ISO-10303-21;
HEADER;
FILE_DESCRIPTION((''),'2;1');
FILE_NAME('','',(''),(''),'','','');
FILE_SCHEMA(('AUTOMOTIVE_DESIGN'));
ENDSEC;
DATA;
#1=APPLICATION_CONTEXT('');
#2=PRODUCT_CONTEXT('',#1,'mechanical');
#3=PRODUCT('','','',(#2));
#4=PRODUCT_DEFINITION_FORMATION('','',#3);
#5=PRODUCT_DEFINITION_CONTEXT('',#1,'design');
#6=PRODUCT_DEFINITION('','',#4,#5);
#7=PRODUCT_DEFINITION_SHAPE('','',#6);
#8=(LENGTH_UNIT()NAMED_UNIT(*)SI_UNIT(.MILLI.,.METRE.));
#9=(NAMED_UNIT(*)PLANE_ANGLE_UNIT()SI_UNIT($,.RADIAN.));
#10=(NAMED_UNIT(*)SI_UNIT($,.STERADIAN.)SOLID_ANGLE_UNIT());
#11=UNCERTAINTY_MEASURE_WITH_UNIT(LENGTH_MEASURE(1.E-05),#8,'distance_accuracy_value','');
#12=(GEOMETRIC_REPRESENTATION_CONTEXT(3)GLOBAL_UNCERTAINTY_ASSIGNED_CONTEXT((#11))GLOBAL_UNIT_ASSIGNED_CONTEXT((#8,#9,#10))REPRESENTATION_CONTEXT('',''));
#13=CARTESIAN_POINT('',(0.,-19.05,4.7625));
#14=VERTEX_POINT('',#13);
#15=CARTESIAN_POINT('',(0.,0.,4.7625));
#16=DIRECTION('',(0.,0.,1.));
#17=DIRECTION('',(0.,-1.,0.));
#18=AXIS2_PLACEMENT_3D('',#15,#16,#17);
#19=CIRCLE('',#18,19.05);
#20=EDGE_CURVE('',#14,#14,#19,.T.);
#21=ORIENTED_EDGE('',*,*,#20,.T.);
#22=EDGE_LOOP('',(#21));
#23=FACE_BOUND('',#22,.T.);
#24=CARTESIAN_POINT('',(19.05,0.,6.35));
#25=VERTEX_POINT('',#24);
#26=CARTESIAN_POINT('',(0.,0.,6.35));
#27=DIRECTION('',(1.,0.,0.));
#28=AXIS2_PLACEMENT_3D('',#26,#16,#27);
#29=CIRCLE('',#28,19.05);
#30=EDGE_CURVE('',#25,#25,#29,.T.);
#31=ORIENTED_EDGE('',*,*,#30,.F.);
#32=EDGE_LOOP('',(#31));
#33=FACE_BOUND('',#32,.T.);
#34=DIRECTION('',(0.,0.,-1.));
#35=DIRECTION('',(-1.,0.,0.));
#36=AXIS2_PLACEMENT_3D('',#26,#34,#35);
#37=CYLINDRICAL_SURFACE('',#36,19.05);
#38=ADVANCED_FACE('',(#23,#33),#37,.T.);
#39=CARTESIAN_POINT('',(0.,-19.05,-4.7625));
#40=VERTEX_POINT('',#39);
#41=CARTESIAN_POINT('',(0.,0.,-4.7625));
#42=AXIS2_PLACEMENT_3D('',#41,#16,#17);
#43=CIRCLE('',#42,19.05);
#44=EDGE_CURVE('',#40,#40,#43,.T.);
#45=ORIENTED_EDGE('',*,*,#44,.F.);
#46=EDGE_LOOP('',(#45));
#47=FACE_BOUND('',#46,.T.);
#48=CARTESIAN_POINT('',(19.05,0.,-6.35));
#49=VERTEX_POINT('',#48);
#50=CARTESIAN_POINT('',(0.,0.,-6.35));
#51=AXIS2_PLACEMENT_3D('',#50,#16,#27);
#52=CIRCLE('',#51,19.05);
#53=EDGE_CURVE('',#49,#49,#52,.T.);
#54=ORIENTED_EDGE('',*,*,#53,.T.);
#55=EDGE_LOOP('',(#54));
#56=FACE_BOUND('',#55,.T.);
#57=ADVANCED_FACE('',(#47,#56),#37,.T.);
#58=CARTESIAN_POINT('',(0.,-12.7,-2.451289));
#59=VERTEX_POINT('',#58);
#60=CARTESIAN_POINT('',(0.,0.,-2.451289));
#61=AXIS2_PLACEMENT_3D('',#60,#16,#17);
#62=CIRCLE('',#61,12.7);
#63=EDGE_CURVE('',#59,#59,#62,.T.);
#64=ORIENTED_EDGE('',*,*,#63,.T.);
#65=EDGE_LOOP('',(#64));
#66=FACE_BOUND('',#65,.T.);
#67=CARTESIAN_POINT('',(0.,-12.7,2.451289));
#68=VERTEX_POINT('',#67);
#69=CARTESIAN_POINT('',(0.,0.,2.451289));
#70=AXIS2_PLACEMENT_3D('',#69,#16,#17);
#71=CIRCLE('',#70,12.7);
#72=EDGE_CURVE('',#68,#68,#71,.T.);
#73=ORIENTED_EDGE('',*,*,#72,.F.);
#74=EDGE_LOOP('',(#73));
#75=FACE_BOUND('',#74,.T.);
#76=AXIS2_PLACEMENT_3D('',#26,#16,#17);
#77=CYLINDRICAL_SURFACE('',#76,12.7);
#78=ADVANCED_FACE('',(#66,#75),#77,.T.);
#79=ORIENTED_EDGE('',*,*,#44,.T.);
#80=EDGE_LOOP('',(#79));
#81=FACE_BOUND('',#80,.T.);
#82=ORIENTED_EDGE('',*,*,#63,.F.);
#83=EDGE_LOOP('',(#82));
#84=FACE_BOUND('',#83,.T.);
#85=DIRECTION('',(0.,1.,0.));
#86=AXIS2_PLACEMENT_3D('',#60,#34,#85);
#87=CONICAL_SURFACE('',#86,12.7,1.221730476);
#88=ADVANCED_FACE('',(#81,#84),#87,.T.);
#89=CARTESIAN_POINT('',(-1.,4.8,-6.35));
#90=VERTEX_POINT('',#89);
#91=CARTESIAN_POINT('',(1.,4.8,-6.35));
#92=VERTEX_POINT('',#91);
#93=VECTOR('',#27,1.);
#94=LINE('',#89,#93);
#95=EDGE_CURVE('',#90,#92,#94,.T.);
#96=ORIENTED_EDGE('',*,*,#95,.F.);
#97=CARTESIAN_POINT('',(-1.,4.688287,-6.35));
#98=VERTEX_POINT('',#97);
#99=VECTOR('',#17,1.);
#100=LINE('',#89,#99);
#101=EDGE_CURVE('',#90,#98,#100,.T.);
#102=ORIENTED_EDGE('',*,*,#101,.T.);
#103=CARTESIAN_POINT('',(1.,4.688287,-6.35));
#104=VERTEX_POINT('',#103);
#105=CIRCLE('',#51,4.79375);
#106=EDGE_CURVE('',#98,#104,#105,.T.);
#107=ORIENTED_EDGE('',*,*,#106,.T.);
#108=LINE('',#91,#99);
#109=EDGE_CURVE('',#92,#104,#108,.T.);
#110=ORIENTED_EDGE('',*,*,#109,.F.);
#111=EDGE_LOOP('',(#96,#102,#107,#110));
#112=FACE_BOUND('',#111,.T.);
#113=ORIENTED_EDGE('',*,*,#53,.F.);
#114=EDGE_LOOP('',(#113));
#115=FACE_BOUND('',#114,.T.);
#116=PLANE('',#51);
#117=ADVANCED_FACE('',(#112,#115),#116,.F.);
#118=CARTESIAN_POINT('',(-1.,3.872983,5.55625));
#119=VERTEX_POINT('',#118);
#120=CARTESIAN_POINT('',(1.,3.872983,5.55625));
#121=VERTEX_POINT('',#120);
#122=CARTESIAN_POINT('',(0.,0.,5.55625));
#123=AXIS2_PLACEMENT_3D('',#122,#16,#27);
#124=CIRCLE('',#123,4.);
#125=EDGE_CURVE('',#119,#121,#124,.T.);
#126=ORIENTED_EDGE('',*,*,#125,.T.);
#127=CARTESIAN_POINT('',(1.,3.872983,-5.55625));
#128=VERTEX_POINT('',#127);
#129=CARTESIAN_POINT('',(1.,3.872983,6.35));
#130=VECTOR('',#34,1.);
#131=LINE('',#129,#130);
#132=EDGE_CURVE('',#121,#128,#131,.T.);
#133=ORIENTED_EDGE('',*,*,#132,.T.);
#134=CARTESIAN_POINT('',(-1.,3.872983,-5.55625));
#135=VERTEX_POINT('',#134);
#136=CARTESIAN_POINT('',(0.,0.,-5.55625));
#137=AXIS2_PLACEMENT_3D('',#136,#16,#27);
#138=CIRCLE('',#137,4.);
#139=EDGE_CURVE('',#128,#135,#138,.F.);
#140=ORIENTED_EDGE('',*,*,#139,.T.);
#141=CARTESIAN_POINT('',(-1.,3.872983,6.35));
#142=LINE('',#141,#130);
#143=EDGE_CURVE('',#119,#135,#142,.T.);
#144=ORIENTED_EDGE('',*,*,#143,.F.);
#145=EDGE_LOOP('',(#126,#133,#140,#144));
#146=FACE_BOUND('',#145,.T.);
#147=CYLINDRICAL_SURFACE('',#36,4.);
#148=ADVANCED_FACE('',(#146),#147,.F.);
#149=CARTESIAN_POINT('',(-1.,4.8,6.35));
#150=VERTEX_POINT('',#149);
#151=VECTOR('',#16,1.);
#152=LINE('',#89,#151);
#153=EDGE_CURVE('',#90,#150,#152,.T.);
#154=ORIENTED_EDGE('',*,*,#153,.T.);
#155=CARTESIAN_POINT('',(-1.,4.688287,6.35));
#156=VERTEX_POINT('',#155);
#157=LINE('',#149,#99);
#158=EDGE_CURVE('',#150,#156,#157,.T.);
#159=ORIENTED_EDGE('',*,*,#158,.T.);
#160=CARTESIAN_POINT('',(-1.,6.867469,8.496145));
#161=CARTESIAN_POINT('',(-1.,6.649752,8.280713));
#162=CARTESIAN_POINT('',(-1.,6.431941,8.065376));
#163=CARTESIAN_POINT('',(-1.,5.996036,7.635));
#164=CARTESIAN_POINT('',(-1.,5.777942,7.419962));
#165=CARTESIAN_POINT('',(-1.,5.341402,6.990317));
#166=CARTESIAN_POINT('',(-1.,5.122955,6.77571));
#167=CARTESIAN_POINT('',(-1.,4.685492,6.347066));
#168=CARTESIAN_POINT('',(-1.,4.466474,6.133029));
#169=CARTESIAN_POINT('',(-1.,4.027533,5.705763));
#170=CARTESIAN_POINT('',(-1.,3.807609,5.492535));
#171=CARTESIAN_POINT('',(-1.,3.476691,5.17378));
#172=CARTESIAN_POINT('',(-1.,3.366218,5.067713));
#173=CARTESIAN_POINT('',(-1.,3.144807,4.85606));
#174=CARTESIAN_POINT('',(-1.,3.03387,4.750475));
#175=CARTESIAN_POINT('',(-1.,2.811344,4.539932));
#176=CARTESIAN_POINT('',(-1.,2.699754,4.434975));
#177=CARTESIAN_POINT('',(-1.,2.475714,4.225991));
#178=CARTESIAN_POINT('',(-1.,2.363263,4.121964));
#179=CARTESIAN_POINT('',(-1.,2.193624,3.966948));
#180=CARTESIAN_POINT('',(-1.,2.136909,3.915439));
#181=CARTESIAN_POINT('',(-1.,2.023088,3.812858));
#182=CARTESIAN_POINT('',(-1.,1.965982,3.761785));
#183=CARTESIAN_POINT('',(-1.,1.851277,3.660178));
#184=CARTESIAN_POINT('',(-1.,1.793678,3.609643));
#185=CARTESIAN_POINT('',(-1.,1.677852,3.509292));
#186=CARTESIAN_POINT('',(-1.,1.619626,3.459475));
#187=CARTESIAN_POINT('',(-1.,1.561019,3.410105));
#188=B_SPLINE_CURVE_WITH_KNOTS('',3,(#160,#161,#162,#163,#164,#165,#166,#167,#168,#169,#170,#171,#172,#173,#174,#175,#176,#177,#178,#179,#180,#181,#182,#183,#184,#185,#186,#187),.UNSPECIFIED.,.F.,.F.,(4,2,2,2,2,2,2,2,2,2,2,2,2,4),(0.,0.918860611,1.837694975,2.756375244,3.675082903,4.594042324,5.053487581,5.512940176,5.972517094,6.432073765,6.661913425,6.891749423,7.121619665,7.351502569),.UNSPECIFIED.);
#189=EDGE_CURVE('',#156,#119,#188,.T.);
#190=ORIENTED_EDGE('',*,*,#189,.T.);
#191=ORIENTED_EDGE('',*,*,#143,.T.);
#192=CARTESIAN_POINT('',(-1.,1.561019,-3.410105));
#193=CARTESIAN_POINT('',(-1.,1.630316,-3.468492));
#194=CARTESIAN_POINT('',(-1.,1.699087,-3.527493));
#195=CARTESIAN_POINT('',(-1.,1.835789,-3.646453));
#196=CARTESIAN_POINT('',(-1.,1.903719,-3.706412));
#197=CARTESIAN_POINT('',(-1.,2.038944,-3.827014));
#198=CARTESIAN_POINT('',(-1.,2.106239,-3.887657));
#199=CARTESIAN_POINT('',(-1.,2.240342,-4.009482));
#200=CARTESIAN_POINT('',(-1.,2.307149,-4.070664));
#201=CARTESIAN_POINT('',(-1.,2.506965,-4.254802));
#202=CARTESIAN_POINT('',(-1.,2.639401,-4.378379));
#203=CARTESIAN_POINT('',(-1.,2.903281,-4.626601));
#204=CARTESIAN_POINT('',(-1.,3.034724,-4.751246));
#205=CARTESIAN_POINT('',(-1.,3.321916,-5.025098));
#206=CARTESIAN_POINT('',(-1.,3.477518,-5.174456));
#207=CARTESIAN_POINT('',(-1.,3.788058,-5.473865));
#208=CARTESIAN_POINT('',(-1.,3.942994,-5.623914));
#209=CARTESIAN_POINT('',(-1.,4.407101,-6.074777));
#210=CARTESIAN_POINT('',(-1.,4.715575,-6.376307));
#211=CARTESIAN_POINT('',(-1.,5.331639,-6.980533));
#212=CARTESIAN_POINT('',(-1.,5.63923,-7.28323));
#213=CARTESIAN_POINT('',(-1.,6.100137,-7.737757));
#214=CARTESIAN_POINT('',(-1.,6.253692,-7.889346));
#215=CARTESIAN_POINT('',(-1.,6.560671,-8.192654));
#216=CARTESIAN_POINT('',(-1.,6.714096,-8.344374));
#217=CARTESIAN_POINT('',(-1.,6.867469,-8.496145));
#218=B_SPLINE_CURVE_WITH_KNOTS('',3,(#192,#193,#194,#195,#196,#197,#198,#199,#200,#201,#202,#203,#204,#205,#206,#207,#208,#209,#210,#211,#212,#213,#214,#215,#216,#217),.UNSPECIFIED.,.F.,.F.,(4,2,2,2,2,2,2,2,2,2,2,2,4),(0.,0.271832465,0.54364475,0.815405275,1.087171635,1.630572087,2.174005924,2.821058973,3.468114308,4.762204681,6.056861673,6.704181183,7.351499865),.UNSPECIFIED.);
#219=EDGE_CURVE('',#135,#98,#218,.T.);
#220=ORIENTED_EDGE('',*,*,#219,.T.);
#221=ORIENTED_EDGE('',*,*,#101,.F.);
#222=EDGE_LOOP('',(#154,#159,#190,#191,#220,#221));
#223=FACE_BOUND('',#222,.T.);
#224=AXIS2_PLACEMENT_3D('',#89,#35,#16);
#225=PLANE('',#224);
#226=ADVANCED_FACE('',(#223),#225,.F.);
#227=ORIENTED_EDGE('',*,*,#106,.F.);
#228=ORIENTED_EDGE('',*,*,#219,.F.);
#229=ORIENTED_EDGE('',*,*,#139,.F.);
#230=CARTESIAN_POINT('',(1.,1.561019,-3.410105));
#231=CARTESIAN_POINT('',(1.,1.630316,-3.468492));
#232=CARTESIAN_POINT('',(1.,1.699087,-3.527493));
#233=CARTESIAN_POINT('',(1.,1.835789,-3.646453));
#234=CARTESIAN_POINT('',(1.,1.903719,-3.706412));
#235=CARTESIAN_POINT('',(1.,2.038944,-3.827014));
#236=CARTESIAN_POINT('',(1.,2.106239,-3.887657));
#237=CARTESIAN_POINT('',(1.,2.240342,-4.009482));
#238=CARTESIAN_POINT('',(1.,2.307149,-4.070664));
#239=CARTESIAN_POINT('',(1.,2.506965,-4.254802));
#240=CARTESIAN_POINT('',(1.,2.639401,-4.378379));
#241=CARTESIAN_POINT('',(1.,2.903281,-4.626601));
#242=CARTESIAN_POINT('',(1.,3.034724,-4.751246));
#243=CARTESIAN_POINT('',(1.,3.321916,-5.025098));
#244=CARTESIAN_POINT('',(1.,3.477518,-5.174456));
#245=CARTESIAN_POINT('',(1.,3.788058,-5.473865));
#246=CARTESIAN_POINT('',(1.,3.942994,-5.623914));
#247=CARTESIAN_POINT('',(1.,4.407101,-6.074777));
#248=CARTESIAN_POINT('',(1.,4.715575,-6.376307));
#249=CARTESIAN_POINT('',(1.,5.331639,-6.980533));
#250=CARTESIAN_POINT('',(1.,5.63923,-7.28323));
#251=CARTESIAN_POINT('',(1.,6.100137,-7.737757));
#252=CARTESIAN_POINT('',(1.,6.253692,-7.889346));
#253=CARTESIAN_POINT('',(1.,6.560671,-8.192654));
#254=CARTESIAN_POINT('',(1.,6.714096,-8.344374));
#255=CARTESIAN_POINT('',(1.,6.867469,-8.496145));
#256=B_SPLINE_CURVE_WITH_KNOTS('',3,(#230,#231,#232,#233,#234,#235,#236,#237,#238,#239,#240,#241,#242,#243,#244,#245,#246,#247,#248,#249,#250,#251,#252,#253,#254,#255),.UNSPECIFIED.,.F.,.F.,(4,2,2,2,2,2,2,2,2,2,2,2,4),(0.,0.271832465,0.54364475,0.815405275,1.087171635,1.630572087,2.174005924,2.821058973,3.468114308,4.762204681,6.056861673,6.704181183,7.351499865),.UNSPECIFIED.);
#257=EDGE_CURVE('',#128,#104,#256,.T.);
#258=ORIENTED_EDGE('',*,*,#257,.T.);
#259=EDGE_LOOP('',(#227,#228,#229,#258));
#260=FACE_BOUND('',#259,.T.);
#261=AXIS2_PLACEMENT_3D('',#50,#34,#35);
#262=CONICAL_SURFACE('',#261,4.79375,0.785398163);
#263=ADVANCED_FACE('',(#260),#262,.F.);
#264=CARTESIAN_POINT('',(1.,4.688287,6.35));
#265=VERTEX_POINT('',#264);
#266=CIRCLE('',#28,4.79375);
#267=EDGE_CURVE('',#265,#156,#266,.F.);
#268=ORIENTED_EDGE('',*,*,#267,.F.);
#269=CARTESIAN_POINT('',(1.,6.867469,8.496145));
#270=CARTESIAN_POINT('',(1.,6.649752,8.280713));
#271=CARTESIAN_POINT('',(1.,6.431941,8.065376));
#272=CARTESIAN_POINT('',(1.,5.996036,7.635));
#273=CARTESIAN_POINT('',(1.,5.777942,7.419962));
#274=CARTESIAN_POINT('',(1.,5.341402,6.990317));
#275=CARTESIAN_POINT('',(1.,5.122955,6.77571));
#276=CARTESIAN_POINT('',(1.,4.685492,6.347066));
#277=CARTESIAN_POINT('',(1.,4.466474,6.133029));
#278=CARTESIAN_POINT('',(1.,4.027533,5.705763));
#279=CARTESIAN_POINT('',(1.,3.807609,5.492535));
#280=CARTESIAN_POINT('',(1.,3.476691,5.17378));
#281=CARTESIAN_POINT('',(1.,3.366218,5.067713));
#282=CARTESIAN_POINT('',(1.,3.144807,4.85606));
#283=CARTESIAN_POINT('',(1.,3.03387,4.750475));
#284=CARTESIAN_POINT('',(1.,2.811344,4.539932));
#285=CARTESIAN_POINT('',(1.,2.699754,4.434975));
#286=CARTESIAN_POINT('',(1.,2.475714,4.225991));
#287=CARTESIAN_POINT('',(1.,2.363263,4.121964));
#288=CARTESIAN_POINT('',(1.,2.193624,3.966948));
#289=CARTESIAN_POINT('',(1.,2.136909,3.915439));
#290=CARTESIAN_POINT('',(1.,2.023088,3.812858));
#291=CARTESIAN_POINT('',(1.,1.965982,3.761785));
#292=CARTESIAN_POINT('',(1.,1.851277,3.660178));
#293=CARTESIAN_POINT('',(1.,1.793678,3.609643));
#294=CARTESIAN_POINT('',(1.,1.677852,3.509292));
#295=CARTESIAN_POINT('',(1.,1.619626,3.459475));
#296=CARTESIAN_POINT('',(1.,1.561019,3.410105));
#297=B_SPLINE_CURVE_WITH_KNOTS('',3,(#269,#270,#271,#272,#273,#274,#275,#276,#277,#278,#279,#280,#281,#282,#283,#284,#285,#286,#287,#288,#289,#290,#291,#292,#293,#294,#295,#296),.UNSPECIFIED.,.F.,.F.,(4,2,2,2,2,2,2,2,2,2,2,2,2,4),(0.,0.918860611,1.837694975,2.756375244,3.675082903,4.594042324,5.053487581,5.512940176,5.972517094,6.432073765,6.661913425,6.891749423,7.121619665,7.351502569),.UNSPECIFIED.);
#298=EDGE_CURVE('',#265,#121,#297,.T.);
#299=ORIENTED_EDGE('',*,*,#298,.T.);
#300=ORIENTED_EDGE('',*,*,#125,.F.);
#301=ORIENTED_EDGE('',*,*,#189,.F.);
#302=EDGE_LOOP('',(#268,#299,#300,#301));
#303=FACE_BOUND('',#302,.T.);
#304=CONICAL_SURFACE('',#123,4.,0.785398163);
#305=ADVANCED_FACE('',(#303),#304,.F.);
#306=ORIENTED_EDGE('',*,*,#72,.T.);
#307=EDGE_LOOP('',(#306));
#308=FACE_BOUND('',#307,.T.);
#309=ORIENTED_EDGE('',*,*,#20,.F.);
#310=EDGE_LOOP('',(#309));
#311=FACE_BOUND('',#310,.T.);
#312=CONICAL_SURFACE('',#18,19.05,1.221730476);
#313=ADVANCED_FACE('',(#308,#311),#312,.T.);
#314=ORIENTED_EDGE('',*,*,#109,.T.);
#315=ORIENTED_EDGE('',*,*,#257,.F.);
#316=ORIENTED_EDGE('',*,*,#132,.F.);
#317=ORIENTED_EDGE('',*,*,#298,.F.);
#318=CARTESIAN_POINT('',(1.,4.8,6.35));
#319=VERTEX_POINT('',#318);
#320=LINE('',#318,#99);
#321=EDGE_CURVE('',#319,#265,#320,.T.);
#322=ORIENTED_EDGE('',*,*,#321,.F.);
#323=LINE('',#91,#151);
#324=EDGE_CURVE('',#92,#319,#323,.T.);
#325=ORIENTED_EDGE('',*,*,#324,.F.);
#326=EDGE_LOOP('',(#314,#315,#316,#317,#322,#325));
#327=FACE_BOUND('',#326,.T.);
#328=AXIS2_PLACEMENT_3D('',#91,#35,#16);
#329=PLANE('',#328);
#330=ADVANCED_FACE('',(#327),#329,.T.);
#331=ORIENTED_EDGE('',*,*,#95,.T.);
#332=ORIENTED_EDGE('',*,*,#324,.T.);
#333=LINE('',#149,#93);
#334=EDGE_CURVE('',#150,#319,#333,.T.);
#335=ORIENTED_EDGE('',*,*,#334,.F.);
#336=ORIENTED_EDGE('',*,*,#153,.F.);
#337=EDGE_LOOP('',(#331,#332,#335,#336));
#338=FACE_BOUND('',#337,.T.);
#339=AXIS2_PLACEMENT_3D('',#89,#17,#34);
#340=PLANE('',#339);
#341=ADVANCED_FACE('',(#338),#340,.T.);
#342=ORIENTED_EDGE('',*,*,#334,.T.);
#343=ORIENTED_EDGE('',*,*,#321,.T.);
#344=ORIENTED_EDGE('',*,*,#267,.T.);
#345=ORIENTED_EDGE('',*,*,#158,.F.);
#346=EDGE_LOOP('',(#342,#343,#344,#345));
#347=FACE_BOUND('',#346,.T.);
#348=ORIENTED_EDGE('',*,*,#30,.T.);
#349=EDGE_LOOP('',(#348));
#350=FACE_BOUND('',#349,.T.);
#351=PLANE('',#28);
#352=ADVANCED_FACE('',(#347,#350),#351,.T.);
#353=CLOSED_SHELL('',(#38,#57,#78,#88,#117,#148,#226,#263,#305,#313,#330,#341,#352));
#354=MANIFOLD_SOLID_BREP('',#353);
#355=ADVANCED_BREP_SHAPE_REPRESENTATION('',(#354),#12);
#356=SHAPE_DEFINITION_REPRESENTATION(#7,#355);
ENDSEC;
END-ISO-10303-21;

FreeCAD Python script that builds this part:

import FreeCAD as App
import Part
import Sketcher
Q = App.Units.Quantity


def edges_at(feature, points):
    """Names of the edges that pass closest to the given points."""
    edges = feature.Shape.Edges
    near = lambda p: min(range(len(edges)), key=lambda i: edges[i].distToShape(Part.Vertex(*p))[0])
    return sorted({f"Edge{near(p) + 1}" for p in points})


def add_polygon(sketch, points):
    """Adds a closed chain of lines whose ends are joined by coincident constraints."""
    first, n = sketch.GeometryCount, len(points)
    for a, b in zip(points, points[1:] + points[:1]):
        sketch.addGeometry(Part.LineSegment(App.Vector(*a, 0), App.Vector(*b, 0)), False)
    for i in range(n):
        sketch.addConstraint(Sketcher.Constraint("Coincident", first + i, 2, first + (i + 1) % n, 1))

doc = App.newDocument("Part")
body = doc.addObject("PartDesign::Body", "Body")

sketch1 = body.newObject("Sketcher::SketchObject", "Sketch")
sketch1.AttachmentSupport = (doc.getObject("XY_Plane"), [""])
sketch1.MapMode = "FlatFace"
sketch1.addGeometry(Part.Circle(App.Vector(0, 0, 0), App.Vector(0, 0, 1), 19.1), False)
sketch1.addGeometry(Part.Circle(App.Vector(0, 0, 0), App.Vector(0, 0, 1), 4), False)
sketch1.addConstraint(Sketcher.Constraint("Coincident", 0, 3, -1, 1))
sketch1.addConstraint(Sketcher.Constraint("Coincident", 1, 3, -1, 1))
sketch1.addConstraint(Sketcher.Constraint("Diameter", 0, Q("1.5 in")))
sketch1.addConstraint(Sketcher.Constraint("Diameter", 1, Q("8 mm")))
pad1 = body.newObject("PartDesign::Pad", "Pad")
pad1.Profile = sketch1
pad1.Length = Q("0.5 in")
pad1.Midplane = True
doc.recompute()

chamfer = body.newObject("PartDesign::Chamfer", "Chamfer")
chamfer.Base = (pad1, edges_at(pad1, [(-4, 0, -6.35), (-4, 0, 6.35)]))
chamfer.Size = Q("0.03125 in")

sketch2 = body.newObject("Sketcher::SketchObject", "Sketch001")
sketch2.AttachmentSupport = (doc.getObject("YZ_Plane"), [""])
sketch2.MapMode = "FlatFace"
add_polygon(sketch2, [(19.1, -4.8), (19.1, 4.8), (12.7, 2.5), (12.7, -2.5)])
sketch2.addConstraint(Sketcher.Constraint("Vertical", 0))
sketch2.addConstraint(Sketcher.Constraint("Vertical", 2))
sketch2.addConstraint(Sketcher.Constraint("Equal", 1, 3))
sketch2.addConstraint(Sketcher.Constraint("Angle", 1, Q("-160 deg")))
sketch2.addConstraint(Sketcher.Constraint("DistanceX", -1, 1, 1, 2, Q("0.5 in")))
sketch2.addConstraint(Sketcher.Constraint("DistanceY", 0, 1, 0, 2, Q("0.375 in")))
sketch2.addConstraint(Sketcher.Constraint("DistanceX", -1, 1, 0, 2, Q("0.75 in")))
sketch2.addConstraint(Sketcher.Constraint("DistanceY", -1, 1, 0, 2, Q("0.1875 in")))
groove = body.newObject("PartDesign::Groove", "Groove")
groove.Profile = sketch2
groove.ReferenceAxis = (sketch2, ["V_Axis"])
groove.Angle = 360

sketch3 = body.newObject("Sketcher::SketchObject", "Sketch002")
sketch3.AttachmentSupport = (doc.getObject("XY_Plane"), [""])
sketch3.MapMode = "FlatFace"
sketch3.AttachmentOffset = App.Placement(App.Vector(0, 0, 0.25 * 25.4), App.Rotation())
add_polygon(sketch3, [(-1, 4.8), (-1, 2.8), (1, 2.8), (1, 4.8)])
sketch3.addConstraint(Sketcher.Constraint("Vertical", 0))
sketch3.addConstraint(Sketcher.Constraint("Horizontal", 1))
sketch3.addConstraint(Sketcher.Constraint("Vertical", 2))
sketch3.addConstraint(Sketcher.Constraint("Horizontal", 3))
sketch3.addConstraint(Sketcher.Constraint("Equal", 3, 0))
sketch3.addConstraint(Sketcher.Constraint("DistanceX", 1, 1, 1, 2, Q("2 mm")))
sketch3.addConstraint(Sketcher.Constraint("DistanceX", 0, 2, -1, 1, Q("1 mm")))
sketch3.addConstraint(Sketcher.Constraint("DistanceY", -1, 1, 0, 2, Q("2.8 mm")))
pocket1 = body.newObject("PartDesign::Pocket", "Pocket")
pocket1.Profile = sketch3
pocket1.Type = "ThroughAll"

doc.recompute()
